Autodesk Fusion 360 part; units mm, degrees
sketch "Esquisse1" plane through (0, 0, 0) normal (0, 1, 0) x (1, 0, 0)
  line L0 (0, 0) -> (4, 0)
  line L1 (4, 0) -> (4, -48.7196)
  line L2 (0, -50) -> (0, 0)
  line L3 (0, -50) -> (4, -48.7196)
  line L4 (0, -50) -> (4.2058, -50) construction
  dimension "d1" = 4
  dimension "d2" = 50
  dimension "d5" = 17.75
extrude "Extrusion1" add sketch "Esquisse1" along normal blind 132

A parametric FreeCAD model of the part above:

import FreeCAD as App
import Part
import Sketcher
from FreeCAD import Vector
Q = App.Units.Quantity


def add_polygon(sketch, points):
    """Adds a closed chain of lines whose ends are joined by coincident constraints."""
    first, n = sketch.GeometryCount, len(points)
    for a, b in zip(points, points[1:] + points[:1]):
        sketch.addGeometry(Part.LineSegment(App.Vector(*a, 0), App.Vector(*b, 0)), False)
    for i in range(n):
        sketch.addConstraint(Sketcher.Constraint("Coincident", first + i, 2, first + (i + 1) % n, 1))

doc = App.newDocument("Part")
body = doc.addObject("PartDesign::Body", "Body")

sketch1 = doc.addObject("Sketcher::SketchObject", "Sketch")
body.addObject(sketch1)
sketch1.AttachmentSupport = (doc.XZ_Plane, [""])
sketch1.MapMode = "FlatFace"
add_polygon(sketch1, [(4, 0), (0, 0), (0, 50), (4, 48.7196)])
sketch1.addConstraint([
    Sketcher.Constraint("Horizontal", 0),
    Sketcher.Constraint("Vertical", 1),
    Sketcher.Constraint("Vertical", 3),
    Sketcher.Constraint("Coincident", 0, 2, -1, 1),
    Sketcher.Constraint("DistanceX", 0, 2, 0, 1, Q("4 mm")),
    Sketcher.Constraint("DistanceY", 1, 1, 1, 2, Q("50 mm")),
    Sketcher.Constraint("Angle", 2, Q("-17.7499 deg")),
])
pad1 = doc.addObject("PartDesign::Pad", "Pad")
body.addObject(pad1)
pad1.Profile = sketch1
pad1.Length = 132
pad1.Reversed = True

doc.recompute()
